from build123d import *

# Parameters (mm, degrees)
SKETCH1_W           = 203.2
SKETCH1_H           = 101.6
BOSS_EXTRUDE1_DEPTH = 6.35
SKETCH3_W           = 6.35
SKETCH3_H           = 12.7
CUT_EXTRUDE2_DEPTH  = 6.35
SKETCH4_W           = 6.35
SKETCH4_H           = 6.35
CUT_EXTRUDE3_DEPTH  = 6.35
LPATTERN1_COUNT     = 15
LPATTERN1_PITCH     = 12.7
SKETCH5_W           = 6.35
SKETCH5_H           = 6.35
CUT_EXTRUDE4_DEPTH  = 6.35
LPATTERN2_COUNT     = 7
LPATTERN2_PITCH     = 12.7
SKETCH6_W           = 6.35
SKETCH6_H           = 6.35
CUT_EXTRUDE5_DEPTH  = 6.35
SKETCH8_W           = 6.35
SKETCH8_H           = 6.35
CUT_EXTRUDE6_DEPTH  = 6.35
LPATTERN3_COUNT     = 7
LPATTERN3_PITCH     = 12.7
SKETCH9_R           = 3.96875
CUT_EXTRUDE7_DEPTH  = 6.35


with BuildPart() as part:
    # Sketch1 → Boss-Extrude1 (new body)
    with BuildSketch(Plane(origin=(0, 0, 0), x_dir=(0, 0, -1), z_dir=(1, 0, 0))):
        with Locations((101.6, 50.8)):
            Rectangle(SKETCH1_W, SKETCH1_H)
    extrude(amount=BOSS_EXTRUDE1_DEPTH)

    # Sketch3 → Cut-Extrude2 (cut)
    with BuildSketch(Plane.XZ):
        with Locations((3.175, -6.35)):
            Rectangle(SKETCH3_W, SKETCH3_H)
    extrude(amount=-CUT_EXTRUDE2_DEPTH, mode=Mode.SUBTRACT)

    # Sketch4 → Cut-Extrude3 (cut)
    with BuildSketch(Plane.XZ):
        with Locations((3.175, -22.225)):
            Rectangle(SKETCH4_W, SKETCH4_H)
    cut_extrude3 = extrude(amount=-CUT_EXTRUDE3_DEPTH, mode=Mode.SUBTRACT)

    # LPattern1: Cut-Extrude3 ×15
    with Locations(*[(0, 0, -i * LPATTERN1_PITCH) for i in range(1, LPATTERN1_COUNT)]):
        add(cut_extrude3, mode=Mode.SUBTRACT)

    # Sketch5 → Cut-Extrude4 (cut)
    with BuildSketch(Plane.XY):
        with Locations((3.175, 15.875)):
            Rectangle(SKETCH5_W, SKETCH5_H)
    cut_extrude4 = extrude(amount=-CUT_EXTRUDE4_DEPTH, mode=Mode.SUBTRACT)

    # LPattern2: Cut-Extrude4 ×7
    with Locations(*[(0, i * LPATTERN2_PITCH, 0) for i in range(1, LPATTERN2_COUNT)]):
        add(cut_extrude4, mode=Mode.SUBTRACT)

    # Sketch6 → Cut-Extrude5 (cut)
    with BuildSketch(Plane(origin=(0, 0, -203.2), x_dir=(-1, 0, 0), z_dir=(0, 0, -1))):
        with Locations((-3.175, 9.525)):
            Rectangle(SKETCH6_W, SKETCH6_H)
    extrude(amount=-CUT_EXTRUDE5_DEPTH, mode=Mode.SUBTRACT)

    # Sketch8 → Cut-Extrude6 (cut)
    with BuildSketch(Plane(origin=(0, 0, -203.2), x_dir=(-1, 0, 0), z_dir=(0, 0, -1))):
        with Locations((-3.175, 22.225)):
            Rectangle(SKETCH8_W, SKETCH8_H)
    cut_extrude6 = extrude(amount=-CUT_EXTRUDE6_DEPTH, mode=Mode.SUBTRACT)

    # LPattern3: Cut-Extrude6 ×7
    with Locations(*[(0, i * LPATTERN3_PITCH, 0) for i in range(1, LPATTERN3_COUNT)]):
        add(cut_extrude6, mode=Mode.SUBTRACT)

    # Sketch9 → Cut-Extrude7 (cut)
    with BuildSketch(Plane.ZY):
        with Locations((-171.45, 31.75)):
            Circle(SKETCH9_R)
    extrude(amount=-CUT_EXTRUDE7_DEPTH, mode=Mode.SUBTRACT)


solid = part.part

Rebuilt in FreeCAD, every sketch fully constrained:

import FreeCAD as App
import Part
import Sketcher
from FreeCAD import Vector
Q = App.Units.Quantity


def add_polygon(sketch, points):
    """Adds a closed chain of lines whose ends are joined by coincident constraints."""
    first, n = sketch.GeometryCount, len(points)
    for a, b in zip(points, points[1:] + points[:1]):
        sketch.addGeometry(Part.LineSegment(App.Vector(*a, 0), App.Vector(*b, 0)), False)
    for i in range(n):
        sketch.addConstraint(Sketcher.Constraint("Coincident", first + i, 2, first + (i + 1) % n, 1))

doc = App.newDocument("Part")
params = doc.addObject("Spreadsheet::Sheet", "Params")
for row, (alias, value) in enumerate([
    ("sketch1_width", "4 in"),
    ("sketch1_height", "8 in"),
    ("pad1_length", "0.25 in"),
    ("sketch2_height", "0.5 in"),
    ("sketch2_width", "0.25 in"),
    ("pocket1_length", "0.25 in"),
    ("sketch3_width", "0.25 in"),
    ("pocket2_length", "0.25 in"),
    ("linearpattern_pitch", "0.5 in"),
    ("sketch4_width", "0.25 in"),
    ("pocket3_length", "0.25 in"),
    ("linearpattern2_pitch", "0.5 in"),
    ("sketch5_width", "0.25 in"),
    ("pocket4_length", "0.25 in"),
    ("sketch6_width", "0.25 in"),
    ("pocket5_length", "0.25 in"),
    ("linearpattern3_pitch", "0.5 in"),
    ("sketch7_diameter", "0.3125 in"),
    ("pocket6_length", "0.25 in"),
], start=1):
    params.set(f"A{row}", alias)
    params.set(f"B{row}", "=" + value)
    params.setAlias(f"B{row}", alias)

body = doc.addObject("PartDesign::Body", "Body")

# Sketch on YZ plane
sketch1 = body.newObject("Sketcher::SketchObject", "Sketch")
sketch1.AttachmentSupport = (doc.getObject("YZ_Plane"), [""])
sketch1.MapMode = "FlatFace"
add_polygon(sketch1, [(102, 0), (0, 0), (0, -203), (102, -203)])  # lines 0-3
sketch1.addConstraint(Sketcher.Constraint("Horizontal", 0))
sketch1.addConstraint(Sketcher.Constraint("Vertical", 1))
sketch1.addConstraint(Sketcher.Constraint("Horizontal", 2))
sketch1.addConstraint(Sketcher.Constraint("Vertical", 3))
sketch1.addConstraint(Sketcher.Constraint("Coincident", 0, 2, -1, 1))
sketch1.addConstraint(Sketcher.Constraint("DistanceX", 0, 2, 0, 1, Q("4 in")))
sketch1.addConstraint(Sketcher.Constraint("DistanceY", 1, 2, 1, 1, Q("8 in")))
sketch1.setExpression("Constraints[9]", "Params.sketch1_width")
sketch1.setExpression("Constraints[10]", "Params.sketch1_height")
pad1 = body.newObject("PartDesign::Pad", "Pad")
pad1.Profile = sketch1
pad1.setExpression("Length", "Params.pad1_length")

# Sketch on XZ plane
sketch2 = body.newObject("Sketcher::SketchObject", "Sketch001")
sketch2.AttachmentSupport = (doc.getObject("XZ_Plane"), [""])
sketch2.MapMode = "FlatFace"
add_polygon(sketch2, [(0, 0), (0, -13), (6, -13), (6, 0)])  # lines 0-3
sketch2.addConstraint(Sketcher.Constraint("Vertical", 0))
sketch2.addConstraint(Sketcher.Constraint("Horizontal", 1))
sketch2.addConstraint(Sketcher.Constraint("Vertical", 2))
sketch2.addConstraint(Sketcher.Constraint("Horizontal", 3))
sketch2.addConstraint(Sketcher.Constraint("Coincident", 3, 2, -1, 1))
sketch2.addConstraint(Sketcher.Constraint("DistanceY", 0, 2, 0, 1, Q("0.5 in")))
sketch2.addConstraint(Sketcher.Constraint("DistanceX", 1, 1, 1, 2, Q("0.25 in")))
sketch2.setExpression("Constraints[9]", "Params.sketch2_height")
sketch2.setExpression("Constraints[10]", "Params.sketch2_width")
pocket1 = body.newObject("PartDesign::Pocket", "Pocket")
pocket1.Profile = sketch2
pocket1.setExpression("Length", "Params.pocket1_length")

# Sketch on XZ plane
sketch3 = body.newObject("Sketcher::SketchObject", "Sketch002")
sketch3.AttachmentSupport = (doc.getObject("XZ_Plane"), [""])
sketch3.MapMode = "FlatFace"
add_polygon(sketch3, [(0, -19), (0, -25), (6, -25), (6, -19)])  # lines 0-3
sketch3.addConstraint(Sketcher.Constraint("Vertical", 0))
sketch3.addConstraint(Sketcher.Constraint("Horizontal", 1))
sketch3.addConstraint(Sketcher.Constraint("Vertical", 2))
sketch3.addConstraint(Sketcher.Constraint("Horizontal", 3))
sketch3.addConstraint(Sketcher.Constraint("PointOnObject", 0, 2, -2))
sketch3.addConstraint(Sketcher.Constraint("Equal", 3, 0))
sketch3.addConstraint(Sketcher.Constraint("DistanceY", 0, 2, -1, 1, Q("1 in")))
sketch3.addConstraint(Sketcher.Constraint("DistanceX", 1, 1, 1, 2, Q("0.25 in")))
sketch3.setExpression("Constraints[11]", "Params.sketch3_width")
pocket2 = body.newObject("PartDesign::Pocket", "Pocket001")
pocket2.Profile = sketch3
pocket2.setExpression("Length", "Params.pocket2_length")
doc.recompute()

linearpattern = body.newObject("PartDesign::LinearPattern", "LinearPattern")
linearpattern.Originals = [pocket2]
linearpattern.Direction = (doc.getObject("Z_Axis"), [""])
linearpattern.Mode = "offset"
linearpattern.setExpression("Offset", "Params.linearpattern_pitch")
linearpattern.Occurrences = 15
linearpattern.Reversed = True
body.Tip = linearpattern

# Sketch on XY plane
sketch4 = body.newObject("Sketcher::SketchObject", "Sketch003")
sketch4.AttachmentSupport = (doc.getObject("XY_Plane"), [""])
sketch4.MapMode = "FlatFace"
add_polygon(sketch4, [(0, 19), (0, 13), (6, 13), (6, 19)])  # lines 0-3
sketch4.addConstraint(Sketcher.Constraint("Vertical", 0))
sketch4.addConstraint(Sketcher.Constraint("Horizontal", 1))
sketch4.addConstraint(Sketcher.Constraint("Vertical", 2))
sketch4.addConstraint(Sketcher.Constraint("Horizontal", 3))
sketch4.addConstraint(Sketcher.Constraint("PointOnObject", 0, 2, -2))
sketch4.addConstraint(Sketcher.Constraint("Equal", 3, 0))
sketch4.addConstraint(Sketcher.Constraint("DistanceX", 1, 1, 1, 2, Q("0.25 in")))
sketch4.addConstraint(Sketcher.Constraint("DistanceY", -1, 1, 0, 2, Q("0.5 in")))
sketch4.setExpression("Constraints[10]", "Params.sketch4_width")
pocket3 = body.newObject("PartDesign::Pocket", "Pocket002")
pocket3.Profile = sketch4
pocket3.setExpression("Length", "Params.pocket3_length")
doc.recompute()

linearpattern2 = body.newObject("PartDesign::LinearPattern", "LinearPattern001")
linearpattern2.Originals = [pocket3]
linearpattern2.Direction = (doc.getObject("Y_Axis"), [""])
linearpattern2.Mode = "offset"
linearpattern2.setExpression("Offset", "Params.linearpattern2_pitch")
linearpattern2.Occurrences = 7
body.Tip = linearpattern2

# Sketch on XY plane
sketch5 = body.newObject("Sketcher::SketchObject", "Sketch004")
sketch5.AttachmentSupport = (doc.getObject("XY_Plane"), [""])
sketch5.MapMode = "FlatFace"
sketch5.AttachmentOffset = App.Placement(Vector(0, 0, -8 * 25.4), App.Rotation())
add_polygon(sketch5, [(6, 13), (6, 6), (0, 6), (0, 13)])  # lines 0-3
sketch5.addConstraint(Sketcher.Constraint("Vertical", 0))
sketch5.addConstraint(Sketcher.Constraint("Horizontal", 1))
sketch5.addConstraint(Sketcher.Constraint("Vertical", 2))
sketch5.addConstraint(Sketcher.Constraint("Horizontal", 3))
sketch5.addConstraint(Sketcher.Constraint("PointOnObject", 1, 2, -2))
sketch5.addConstraint(Sketcher.Constraint("Equal", 3, 0))
sketch5.addConstraint(Sketcher.Constraint("DistanceX", 1, 2, 1, 1, Q("0.25 in")))
sketch5.addConstraint(Sketcher.Constraint("DistanceY", -1, 1, 2, 2, Q("0.5 in")))
sketch5.setExpression("Constraints[10]", "Params.sketch5_width")
pocket4 = body.newObject("PartDesign::Pocket", "Pocket003")
pocket4.Profile = sketch5
pocket4.setExpression("Length", "Params.pocket4_length")
pocket4.Reversed = True

# Sketch on XY plane
sketch6 = body.newObject("Sketcher::SketchObject", "Sketch005")
sketch6.AttachmentSupport = (doc.getObject("XY_Plane"), [""])
sketch6.MapMode = "FlatFace"
sketch6.AttachmentOffset = App.Placement(Vector(0, 0, -8 * 25.4), App.Rotation())
add_polygon(sketch6, [(6, 25), (6, 19), (0, 19), (0, 25)])  # lines 0-3
sketch6.addConstraint(Sketcher.Constraint("Vertical", 0))
sketch6.addConstraint(Sketcher.Constraint("Horizontal", 1))
sketch6.addConstraint(Sketcher.Constraint("Vertical", 2))
sketch6.addConstraint(Sketcher.Constraint("Horizontal", 3))
sketch6.addConstraint(Sketcher.Constraint("PointOnObject", 1, 2, -2))
sketch6.addConstraint(Sketcher.Constraint("Equal", 3, 0))
sketch6.addConstraint(Sketcher.Constraint("DistanceY", -1, 1, 2, 2, Q("1 in")))
sketch6.addConstraint(Sketcher.Constraint("DistanceX", 1, 2, 1, 1, Q("0.25 in")))
sketch6.setExpression("Constraints[11]", "Params.sketch6_width")
pocket5 = body.newObject("PartDesign::Pocket", "Pocket004")
pocket5.Profile = sketch6
pocket5.setExpression("Length", "Params.pocket5_length")
pocket5.Reversed = True
doc.recompute()

linearpattern3 = body.newObject("PartDesign::LinearPattern", "LinearPattern002")
linearpattern3.Originals = [pocket5]
linearpattern3.Direction = (doc.getObject("Y_Axis"), [""])
linearpattern3.Mode = "offset"
linearpattern3.setExpression("Offset", "Params.linearpattern3_pitch")
linearpattern3.Occurrences = 7
body.Tip = linearpattern3

# Sketch on YZ plane
sketch7 = body.newObject("Sketcher::SketchObject", "Sketch006")
sketch7.AttachmentSupport = (doc.getObject("YZ_Plane"), [""])
sketch7.MapMode = "FlatFace"
sketch7.addGeometry(Part.Circle(Vector(31.8, -171.4, 0), Vector(0, 0, 1), 4), False)
sketch7.addConstraint(Sketcher.Constraint("Diameter", 0, Q("0.3125 in")))
sketch7.addConstraint(Sketcher.Constraint("DistanceX", -1, 1, 0, 3, Q("1.25 in")))
sketch7.addConstraint(Sketcher.Constraint("DistanceY", 0, 3, -1, 1, Q("6.75 in")))
sketch7.setExpression("Constraints[0]", "Params.sketch7_diameter")
pocket6 = body.newObject("PartDesign::Pocket", "Pocket005")
pocket6.Profile = sketch7
pocket6.setExpression("Length", "Params.pocket6_length")
pocket6.Reversed = True

doc.recompute()
